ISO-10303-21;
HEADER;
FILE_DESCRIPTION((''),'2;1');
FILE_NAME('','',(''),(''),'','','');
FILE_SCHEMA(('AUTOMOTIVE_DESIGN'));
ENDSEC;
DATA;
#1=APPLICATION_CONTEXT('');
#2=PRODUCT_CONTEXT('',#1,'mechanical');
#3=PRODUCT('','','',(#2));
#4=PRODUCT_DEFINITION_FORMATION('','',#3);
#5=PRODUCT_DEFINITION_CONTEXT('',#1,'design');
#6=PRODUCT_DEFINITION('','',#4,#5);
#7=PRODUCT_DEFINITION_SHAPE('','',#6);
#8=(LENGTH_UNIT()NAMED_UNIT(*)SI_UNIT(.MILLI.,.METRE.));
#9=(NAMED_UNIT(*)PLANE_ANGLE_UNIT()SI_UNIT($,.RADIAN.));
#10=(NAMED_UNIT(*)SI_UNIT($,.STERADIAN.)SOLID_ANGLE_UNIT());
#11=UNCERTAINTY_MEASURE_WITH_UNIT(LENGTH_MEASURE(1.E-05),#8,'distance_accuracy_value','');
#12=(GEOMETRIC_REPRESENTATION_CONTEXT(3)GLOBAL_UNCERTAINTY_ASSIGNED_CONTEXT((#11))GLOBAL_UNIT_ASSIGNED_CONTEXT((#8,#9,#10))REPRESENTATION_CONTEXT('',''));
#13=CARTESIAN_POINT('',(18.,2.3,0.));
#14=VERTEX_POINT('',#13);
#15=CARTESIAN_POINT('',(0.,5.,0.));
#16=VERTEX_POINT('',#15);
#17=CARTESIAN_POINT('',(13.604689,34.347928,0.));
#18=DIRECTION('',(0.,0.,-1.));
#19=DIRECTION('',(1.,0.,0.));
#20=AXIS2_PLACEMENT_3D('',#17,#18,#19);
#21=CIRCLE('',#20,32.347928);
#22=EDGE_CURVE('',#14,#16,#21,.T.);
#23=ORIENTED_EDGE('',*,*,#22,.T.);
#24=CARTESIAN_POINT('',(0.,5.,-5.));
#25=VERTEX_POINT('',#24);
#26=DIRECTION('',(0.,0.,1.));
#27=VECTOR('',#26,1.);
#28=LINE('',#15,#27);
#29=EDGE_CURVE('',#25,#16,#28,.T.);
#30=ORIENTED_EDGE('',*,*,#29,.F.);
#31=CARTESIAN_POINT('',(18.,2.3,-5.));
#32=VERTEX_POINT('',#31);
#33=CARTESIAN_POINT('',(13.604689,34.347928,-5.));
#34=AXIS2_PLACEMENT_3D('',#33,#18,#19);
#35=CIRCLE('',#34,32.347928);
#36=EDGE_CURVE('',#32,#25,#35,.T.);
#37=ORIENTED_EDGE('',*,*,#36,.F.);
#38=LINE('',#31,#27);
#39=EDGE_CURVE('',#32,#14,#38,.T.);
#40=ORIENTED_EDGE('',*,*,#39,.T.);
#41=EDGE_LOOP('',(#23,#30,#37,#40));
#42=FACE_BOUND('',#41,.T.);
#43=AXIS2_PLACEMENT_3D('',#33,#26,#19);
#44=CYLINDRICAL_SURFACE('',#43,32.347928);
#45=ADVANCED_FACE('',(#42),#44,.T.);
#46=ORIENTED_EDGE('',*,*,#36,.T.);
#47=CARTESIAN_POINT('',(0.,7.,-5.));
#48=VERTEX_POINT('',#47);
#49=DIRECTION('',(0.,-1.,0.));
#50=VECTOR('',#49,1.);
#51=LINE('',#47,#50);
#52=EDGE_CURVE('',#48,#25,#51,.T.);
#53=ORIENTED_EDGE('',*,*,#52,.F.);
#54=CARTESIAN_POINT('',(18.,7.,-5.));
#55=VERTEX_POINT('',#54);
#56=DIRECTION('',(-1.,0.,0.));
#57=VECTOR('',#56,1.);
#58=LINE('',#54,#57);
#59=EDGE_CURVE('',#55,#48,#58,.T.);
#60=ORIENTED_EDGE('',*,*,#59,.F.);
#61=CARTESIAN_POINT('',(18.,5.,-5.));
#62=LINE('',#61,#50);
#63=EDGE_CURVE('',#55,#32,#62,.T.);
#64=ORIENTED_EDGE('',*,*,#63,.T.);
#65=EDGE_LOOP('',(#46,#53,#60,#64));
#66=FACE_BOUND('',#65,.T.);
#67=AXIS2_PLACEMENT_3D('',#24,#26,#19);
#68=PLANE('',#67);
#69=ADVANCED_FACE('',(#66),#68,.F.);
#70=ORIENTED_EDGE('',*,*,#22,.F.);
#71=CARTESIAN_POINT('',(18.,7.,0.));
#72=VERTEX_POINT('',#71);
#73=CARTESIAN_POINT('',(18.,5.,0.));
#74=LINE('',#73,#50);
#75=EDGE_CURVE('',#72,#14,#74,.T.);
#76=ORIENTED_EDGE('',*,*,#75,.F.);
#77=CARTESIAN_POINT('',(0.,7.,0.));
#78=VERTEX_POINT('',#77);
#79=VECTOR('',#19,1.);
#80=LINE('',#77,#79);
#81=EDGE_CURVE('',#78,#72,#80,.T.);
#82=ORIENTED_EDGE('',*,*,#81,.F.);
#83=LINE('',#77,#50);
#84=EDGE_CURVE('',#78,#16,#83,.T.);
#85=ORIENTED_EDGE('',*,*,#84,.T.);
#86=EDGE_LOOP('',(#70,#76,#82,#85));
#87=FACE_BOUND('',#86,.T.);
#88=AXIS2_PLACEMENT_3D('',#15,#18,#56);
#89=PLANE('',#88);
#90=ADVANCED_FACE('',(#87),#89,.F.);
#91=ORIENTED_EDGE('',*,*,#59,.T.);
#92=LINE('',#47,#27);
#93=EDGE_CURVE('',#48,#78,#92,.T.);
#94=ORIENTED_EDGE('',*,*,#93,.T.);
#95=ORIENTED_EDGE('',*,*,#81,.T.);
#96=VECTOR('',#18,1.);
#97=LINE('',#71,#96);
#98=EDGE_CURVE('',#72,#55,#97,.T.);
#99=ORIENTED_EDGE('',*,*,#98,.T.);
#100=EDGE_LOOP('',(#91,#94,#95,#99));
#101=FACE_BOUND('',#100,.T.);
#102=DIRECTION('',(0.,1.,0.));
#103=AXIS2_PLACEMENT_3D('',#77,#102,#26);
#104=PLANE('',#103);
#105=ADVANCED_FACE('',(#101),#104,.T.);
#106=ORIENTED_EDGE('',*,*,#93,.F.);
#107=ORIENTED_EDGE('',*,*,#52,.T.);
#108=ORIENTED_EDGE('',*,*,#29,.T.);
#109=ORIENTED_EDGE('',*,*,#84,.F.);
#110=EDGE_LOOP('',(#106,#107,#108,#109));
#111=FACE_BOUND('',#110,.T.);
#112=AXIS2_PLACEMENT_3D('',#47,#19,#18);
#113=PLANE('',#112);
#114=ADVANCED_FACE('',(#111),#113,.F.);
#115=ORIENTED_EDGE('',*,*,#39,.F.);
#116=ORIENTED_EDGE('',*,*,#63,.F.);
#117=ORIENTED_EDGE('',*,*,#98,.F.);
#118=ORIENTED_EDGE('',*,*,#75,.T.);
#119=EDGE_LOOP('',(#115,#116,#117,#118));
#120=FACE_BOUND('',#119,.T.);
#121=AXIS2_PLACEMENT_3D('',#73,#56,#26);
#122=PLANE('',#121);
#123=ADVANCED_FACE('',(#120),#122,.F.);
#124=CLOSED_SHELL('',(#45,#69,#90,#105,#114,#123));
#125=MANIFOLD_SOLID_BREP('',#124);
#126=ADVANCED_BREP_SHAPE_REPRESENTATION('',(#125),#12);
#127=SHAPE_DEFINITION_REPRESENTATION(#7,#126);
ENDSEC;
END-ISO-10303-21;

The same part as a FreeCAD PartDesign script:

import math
import FreeCAD as App
import Part
import Sketcher
from FreeCAD import Vector
Q = App.Units.Quantity

doc = App.newDocument("Part")
params = doc.addObject("Spreadsheet::Sheet", "Params")
for row, (alias, value) in enumerate([
    ("sketch1_width", "18 mm"),
    ("sketch1_height", "5 mm"),
    ("pad1_length", "5 mm"),
    ("sketch2_width", "18 mm"),
    ("sketch2_height", "5 mm"),
    ("sketch2_height2", "2.3 mm"),
    ("sketch3_width", "18 mm"),
    ("sketch3_height", "5 mm"),
    ("pad2_length", "2 mm"),
], start=1):
    params.set(f"A{row}", alias)
    params.set(f"B{row}", "=" + value)
    params.setAlias(f"B{row}", alias)

body = doc.addObject("PartDesign::Body", "Body")

# Sketch on XZ plane
sketch1 = body.newObject("Sketcher::SketchObject", "Sketch")
sketch1.AttachmentSupport = (doc.getObject("XZ_Plane"), [""])
sketch1.MapMode = "FlatFace"
sketch1.addGeometry(Part.LineSegment(Vector(0, -5, 0), Vector(0, 0, 0)), False)
sketch1.addGeometry(Part.LineSegment(Vector(0, 0, 0), Vector(18, 0, 0)), False)
sketch1.addGeometry(Part.LineSegment(Vector(18, 0, 0), Vector(18, -5, 0)), False)
sketch1.addGeometry(Part.LineSegment(Vector(18, -5, 0), Vector(0, -5, 0)), False)
sketch1.addConstraint(Sketcher.Constraint("Coincident", 0, 2, 1, 1))
sketch1.addConstraint(Sketcher.Constraint("Coincident", 1, 2, 2, 1))
sketch1.addConstraint(Sketcher.Constraint("Coincident", 2, 2, 3, 1))
sketch1.addConstraint(Sketcher.Constraint("Coincident", 3, 2, 0, 1))
sketch1.addConstraint(Sketcher.Constraint("Vertical", 0))
sketch1.addConstraint(Sketcher.Constraint("Horizontal", 1))
sketch1.addConstraint(Sketcher.Constraint("Vertical", 2))
sketch1.addConstraint(Sketcher.Constraint("Horizontal", 3))
sketch1.addConstraint(Sketcher.Constraint("Coincident", 0, 2, -1, 1))
sketch1.addConstraint(Sketcher.Constraint("DistanceX", 1, 1, 1, 2, Q("18 mm")))
sketch1.addConstraint(Sketcher.Constraint("DistanceY", 0, 1, 0, 2, Q("5 mm")))
sketch1.setExpression("Constraints[9]", "Params.sketch1_width")
sketch1.setExpression("Constraints[10]", "Params.sketch1_height")
pad1 = body.newObject("PartDesign::Pad", "Pad")
pad1.Profile = sketch1
pad1.setExpression("Length", "Params.pad1_length")
pad1.Reversed = True

# Sketch on XY plane
sketch2 = body.newObject("Sketcher::SketchObject", "Sketch001")
sketch2.AttachmentSupport = (doc.getObject("XY_Plane"), [""])
sketch2.MapMode = "FlatFace"
sketch2.addGeometry(Part.LineSegment(Vector(0, 5, 0), Vector(0, 0, 0)), False)
sketch2.addGeometry(Part.LineSegment(Vector(0, 0, 0), Vector(18, 0, 0)), False)
sketch2.addGeometry(Part.LineSegment(Vector(18, 0, 0), Vector(18, 2.3, 0)), False)
sketch2.addGeometry(Part.ArcOfCircle(Part.Circle(Vector(13.604689, 34.347928, 0), Vector(0, 0, 1), 32.347928), math.radians(-114.870816), math.radians(-82.190716)), False)
sketch2.addConstraint(Sketcher.Constraint("Coincident", 0, 2, 1, 1))
sketch2.addConstraint(Sketcher.Constraint("Coincident", 1, 2, 2, 1))
sketch2.addConstraint(Sketcher.Constraint("Coincident", 2, 2, 3, 2))
sketch2.addConstraint(Sketcher.Constraint("Coincident", 3, 1, 0, 1))
sketch2.addConstraint(Sketcher.Constraint("Vertical", 0))
sketch2.addConstraint(Sketcher.Constraint("Horizontal", 1))
sketch2.addConstraint(Sketcher.Constraint("Vertical", 2))
sketch2.addConstraint(Sketcher.Constraint("Coincident", 0, 2, -1, 1))
sketch2.addConstraint(Sketcher.Constraint("DistanceX", 1, 1, 1, 2, Q("18 mm")))
sketch2.addConstraint(Sketcher.Constraint("DistanceY", 0, 2, 0, 1, Q("5 mm")))
sketch2.addConstraint(Sketcher.Constraint("DistanceY", 2, 1, 2, 2, Q("2.3 mm")))
sketch2.addConstraint(Sketcher.Constraint("Radius", 3, Q("32.347928 mm")))
sketch2.setExpression("Constraints[8]", "Params.sketch2_width")
sketch2.setExpression("Constraints[9]", "Params.sketch2_height")
sketch2.setExpression("Constraints[10]", "Params.sketch2_height2")
pocket1 = body.newObject("PartDesign::Pocket", "Pocket")
pocket1.Profile = sketch2
pocket1.Type = "ThroughAll"

# Sketch on XZ plane
sketch3 = body.newObject("Sketcher::SketchObject", "Sketch002")
sketch3.AttachmentSupport = (doc.getObject("XZ_Plane"), [""])
sketch3.MapMode = "FlatFace"
sketch3.AttachmentOffset = App.Placement(Vector(0, 0, -5), App.Rotation())
sketch3.addGeometry(Part.LineSegment(Vector(0, -5, 0), Vector(0, 0, 0)), False)
sketch3.addGeometry(Part.LineSegment(Vector(0, 0, 0), Vector(18, 0, 0)), False)
sketch3.addGeometry(Part.LineSegment(Vector(18, 0, 0), Vector(18, -5, 0)), False)
sketch3.addGeometry(Part.LineSegment(Vector(18, -5, 0), Vector(0, -5, 0)), False)
sketch3.addConstraint(Sketcher.Constraint("Coincident", 0, 2, 1, 1))
sketch3.addConstraint(Sketcher.Constraint("Coincident", 1, 2, 2, 1))
sketch3.addConstraint(Sketcher.Constraint("Coincident", 2, 2, 3, 1))
sketch3.addConstraint(Sketcher.Constraint("Coincident", 3, 2, 0, 1))
sketch3.addConstraint(Sketcher.Constraint("Vertical", 0))
sketch3.addConstraint(Sketcher.Constraint("Horizontal", 1))
sketch3.addConstraint(Sketcher.Constraint("Vertical", 2))
sketch3.addConstraint(Sketcher.Constraint("Horizontal", 3))
sketch3.addConstraint(Sketcher.Constraint("Coincident", 0, 2, -1, 1))
sketch3.addConstraint(Sketcher.Constraint("DistanceX", 1, 1, 1, 2, Q("18 mm")))
sketch3.addConstraint(Sketcher.Constraint("DistanceY", 0, 1, 0, 2, Q("5 mm")))
sketch3.setExpression("Constraints[9]", "Params.sketch3_width")
sketch3.setExpression("Constraints[10]", "Params.sketch3_height")
pad2 = body.newObject("PartDesign::Pad", "Pad001")
pad2.Profile = sketch3
pad2.setExpression("Length", "Params.pad2_length")
pad2.Reversed = True

doc.recompute()
